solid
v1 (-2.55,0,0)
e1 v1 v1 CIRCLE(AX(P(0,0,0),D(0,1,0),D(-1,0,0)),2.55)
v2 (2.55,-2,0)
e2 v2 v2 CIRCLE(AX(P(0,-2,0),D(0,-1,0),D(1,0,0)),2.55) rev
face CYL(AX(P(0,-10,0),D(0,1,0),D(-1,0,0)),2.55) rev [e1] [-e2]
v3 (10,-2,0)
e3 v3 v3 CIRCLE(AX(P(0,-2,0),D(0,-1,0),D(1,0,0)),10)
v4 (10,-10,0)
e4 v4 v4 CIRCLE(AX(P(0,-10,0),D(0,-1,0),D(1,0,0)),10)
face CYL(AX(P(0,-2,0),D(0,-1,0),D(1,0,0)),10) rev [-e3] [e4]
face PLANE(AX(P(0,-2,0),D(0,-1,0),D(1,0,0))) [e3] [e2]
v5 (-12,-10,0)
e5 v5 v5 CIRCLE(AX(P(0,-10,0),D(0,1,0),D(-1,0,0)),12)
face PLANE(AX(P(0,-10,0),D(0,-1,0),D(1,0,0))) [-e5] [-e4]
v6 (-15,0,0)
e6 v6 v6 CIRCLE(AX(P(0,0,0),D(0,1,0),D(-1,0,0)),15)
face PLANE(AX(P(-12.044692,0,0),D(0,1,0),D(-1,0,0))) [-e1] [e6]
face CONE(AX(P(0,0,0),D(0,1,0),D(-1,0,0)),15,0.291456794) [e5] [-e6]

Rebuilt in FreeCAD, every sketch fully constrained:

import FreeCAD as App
import Part
import Sketcher

doc = App.newDocument("Part")
body = doc.addObject("PartDesign::Body", "Body")

# Sketch on XY plane
sketch1 = body.newObject("Sketcher::SketchObject", "Sketch")
sketch1.AttachmentSupport = (doc.getObject("XY_Plane"), [""])
sketch1.MapMode = "FlatFace"
sketch1.addGeometry([
    Part.LineSegment(App.Vector(-15, 0, 0), App.Vector(-12, -10, 0)),
    Part.LineSegment(App.Vector(-12, -10, 0), App.Vector(0, -10, 0)),
    Part.LineSegment(App.Vector(0, -10, 0), App.Vector(0, 0, 0)),
    Part.LineSegment(App.Vector(0, 0, 0), App.Vector(-15, 0, 0)),
], False)
sketch1.addConstraint([
    Sketcher.Constraint("Coincident", 0, 2, 1, 1),
    Sketcher.Constraint("Coincident", 1, 2, 2, 1),
    Sketcher.Constraint("Coincident", 2, 2, 3, 1),
    Sketcher.Constraint("Coincident", 3, 2, 0, 1),
    Sketcher.Constraint("Horizontal", 1),
    Sketcher.Constraint("Vertical", 2),
    Sketcher.Constraint("Horizontal", 3),
    Sketcher.Constraint("Coincident", 2, 2, -1, 1),
    Sketcher.Constraint("DistanceX", 1, 1, 1, 2, 12.0),
    Sketcher.Constraint("DistanceX", 3, 2, 3, 1, 15.0),
    Sketcher.Constraint("DistanceY", 2, 1, 2, 2, 10.0),
])
revolution = body.newObject("PartDesign::Revolution", "Revolution")
revolution.Profile = sketch1
revolution.ReferenceAxis = (sketch1, ["V_Axis"])
revolution.Angle = 360

# Sketch on XZ plane
sketch2 = body.newObject("Sketcher::SketchObject", "Sketch001")
sketch2.AttachmentSupport = (doc.getObject("XZ_Plane"), [""])
sketch2.MapMode = "FlatFace"
sketch2.addGeometry(Part.Circle(App.Vector(0, 0, 0), App.Vector(0, 0, 1), 2.5), False)
sketch2.addConstraint([
    Sketcher.Constraint("Coincident", 0, 3, -1, 1),
    Sketcher.Constraint("Diameter", 0, 5.1),
])
pocket1 = body.newObject("PartDesign::Pocket", "Pocket")
pocket1.Profile = sketch2
pocket1.Length = 10
pocket1.Reversed = True

# Sketch on XZ plane
sketch3 = body.newObject("Sketcher::SketchObject", "Sketch002")
sketch3.AttachmentSupport = (doc.getObject("XZ_Plane"), [""])
sketch3.MapMode = "FlatFace"
sketch3.AttachmentOffset = App.Placement(App.Vector(0, 0, 10), App.Rotation())
sketch3.addGeometry(Part.Circle(App.Vector(0, 0, 0), App.Vector(0, 0, 1), 10), False)
sketch3.addConstraint([
    Sketcher.Constraint("Coincident", 0, 3, -1, 1),
    Sketcher.Constraint("Diameter", 0, 20.0),
])
pocket2 = body.newObject("PartDesign::Pocket", "Pocket001")
pocket2.Profile = sketch3
pocket2.Length = 8

doc.recompute()
